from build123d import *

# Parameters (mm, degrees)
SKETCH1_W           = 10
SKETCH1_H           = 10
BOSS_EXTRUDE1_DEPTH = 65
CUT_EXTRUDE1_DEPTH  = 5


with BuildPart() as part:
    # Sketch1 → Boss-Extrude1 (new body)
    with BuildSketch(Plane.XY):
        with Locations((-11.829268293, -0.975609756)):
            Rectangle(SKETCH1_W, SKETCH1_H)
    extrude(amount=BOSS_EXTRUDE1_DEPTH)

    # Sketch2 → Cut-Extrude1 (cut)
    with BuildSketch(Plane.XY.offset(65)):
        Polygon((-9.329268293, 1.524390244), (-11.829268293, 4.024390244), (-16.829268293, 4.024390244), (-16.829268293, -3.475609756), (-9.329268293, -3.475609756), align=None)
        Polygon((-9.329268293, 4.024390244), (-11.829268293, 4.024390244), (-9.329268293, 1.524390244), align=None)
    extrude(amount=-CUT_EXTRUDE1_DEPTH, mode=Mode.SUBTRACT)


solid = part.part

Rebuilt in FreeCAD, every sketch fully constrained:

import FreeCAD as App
import Part
import Sketcher


def add_polygon(sketch, points):
    """Adds a closed chain of lines whose ends are joined by coincident constraints."""
    first, n = sketch.GeometryCount, len(points)
    for a, b in zip(points, points[1:] + points[:1]):
        sketch.addGeometry(Part.LineSegment(App.Vector(*a, 0), App.Vector(*b, 0)), False)
    for i in range(n):
        sketch.addConstraint(Sketcher.Constraint("Coincident", first + i, 2, first + (i + 1) % n, 1))

doc = App.newDocument("Part")
body = doc.addObject("PartDesign::Body", "Body")

# Sketch on XY plane
sketch1 = body.newObject("Sketcher::SketchObject", "Sketch")
sketch1.AttachmentSupport = (doc.getObject("XY_Plane"), [""])
sketch1.MapMode = "FlatFace"
add_polygon(sketch1, [(-16.829268, 4.02439), (-16.829268, -5.97561), (-6.829268, -5.97561), (-6.829268, 4.02439)])  # lines 0-3
sketch1.addConstraint([
    Sketcher.Constraint("Vertical", 0),
    Sketcher.Constraint("Horizontal", 1),
    Sketcher.Constraint("Vertical", 2),
    Sketcher.Constraint("Horizontal", 3),
    Sketcher.Constraint("Equal", 3, 0),
    Sketcher.Constraint("DistanceX", 1, 1, 1, 2, 10.0),
    Sketcher.Constraint("DistanceX", 0, 2, -1, 1, 16.829268),
    Sketcher.Constraint("DistanceY", 0, 2, -1, 1, 5.97561),
])
pad1 = body.newObject("PartDesign::Pad", "Pad")
pad1.Profile = sketch1
pad1.Length = 65

# Sketch on XY plane
sketch2 = body.newObject("Sketcher::SketchObject", "Sketch001")
sketch2.AttachmentSupport = (doc.getObject("XY_Plane"), [""])
sketch2.MapMode = "FlatFace"
sketch2.AttachmentOffset = App.Placement(App.Vector(0, 0, 65), App.Rotation())
add_polygon(sketch2, [(-16.829268, 4.02439), (-16.829268, -3.47561), (-9.329268, -3.47561), (-9.329268, 4.02439)])  # lines 0-3
sketch2.addConstraint([
    Sketcher.Constraint("Vertical", 0),
    Sketcher.Constraint("Horizontal", 1),
    Sketcher.Constraint("Vertical", 2),
    Sketcher.Constraint("Horizontal", 3),
    Sketcher.Constraint("Equal", 3, 0),
    Sketcher.Constraint("DistanceX", 1, 1, 1, 2, 7.5),
    Sketcher.Constraint("DistanceX", 0, 2, -1, 1, 16.829268),
    Sketcher.Constraint("DistanceY", 0, 2, -1, 1, 3.47561),
])
pocket1 = body.newObject("PartDesign::Pocket", "Pocket")
pocket1.Profile = sketch2
pocket1.Length = 5

doc.recompute()
